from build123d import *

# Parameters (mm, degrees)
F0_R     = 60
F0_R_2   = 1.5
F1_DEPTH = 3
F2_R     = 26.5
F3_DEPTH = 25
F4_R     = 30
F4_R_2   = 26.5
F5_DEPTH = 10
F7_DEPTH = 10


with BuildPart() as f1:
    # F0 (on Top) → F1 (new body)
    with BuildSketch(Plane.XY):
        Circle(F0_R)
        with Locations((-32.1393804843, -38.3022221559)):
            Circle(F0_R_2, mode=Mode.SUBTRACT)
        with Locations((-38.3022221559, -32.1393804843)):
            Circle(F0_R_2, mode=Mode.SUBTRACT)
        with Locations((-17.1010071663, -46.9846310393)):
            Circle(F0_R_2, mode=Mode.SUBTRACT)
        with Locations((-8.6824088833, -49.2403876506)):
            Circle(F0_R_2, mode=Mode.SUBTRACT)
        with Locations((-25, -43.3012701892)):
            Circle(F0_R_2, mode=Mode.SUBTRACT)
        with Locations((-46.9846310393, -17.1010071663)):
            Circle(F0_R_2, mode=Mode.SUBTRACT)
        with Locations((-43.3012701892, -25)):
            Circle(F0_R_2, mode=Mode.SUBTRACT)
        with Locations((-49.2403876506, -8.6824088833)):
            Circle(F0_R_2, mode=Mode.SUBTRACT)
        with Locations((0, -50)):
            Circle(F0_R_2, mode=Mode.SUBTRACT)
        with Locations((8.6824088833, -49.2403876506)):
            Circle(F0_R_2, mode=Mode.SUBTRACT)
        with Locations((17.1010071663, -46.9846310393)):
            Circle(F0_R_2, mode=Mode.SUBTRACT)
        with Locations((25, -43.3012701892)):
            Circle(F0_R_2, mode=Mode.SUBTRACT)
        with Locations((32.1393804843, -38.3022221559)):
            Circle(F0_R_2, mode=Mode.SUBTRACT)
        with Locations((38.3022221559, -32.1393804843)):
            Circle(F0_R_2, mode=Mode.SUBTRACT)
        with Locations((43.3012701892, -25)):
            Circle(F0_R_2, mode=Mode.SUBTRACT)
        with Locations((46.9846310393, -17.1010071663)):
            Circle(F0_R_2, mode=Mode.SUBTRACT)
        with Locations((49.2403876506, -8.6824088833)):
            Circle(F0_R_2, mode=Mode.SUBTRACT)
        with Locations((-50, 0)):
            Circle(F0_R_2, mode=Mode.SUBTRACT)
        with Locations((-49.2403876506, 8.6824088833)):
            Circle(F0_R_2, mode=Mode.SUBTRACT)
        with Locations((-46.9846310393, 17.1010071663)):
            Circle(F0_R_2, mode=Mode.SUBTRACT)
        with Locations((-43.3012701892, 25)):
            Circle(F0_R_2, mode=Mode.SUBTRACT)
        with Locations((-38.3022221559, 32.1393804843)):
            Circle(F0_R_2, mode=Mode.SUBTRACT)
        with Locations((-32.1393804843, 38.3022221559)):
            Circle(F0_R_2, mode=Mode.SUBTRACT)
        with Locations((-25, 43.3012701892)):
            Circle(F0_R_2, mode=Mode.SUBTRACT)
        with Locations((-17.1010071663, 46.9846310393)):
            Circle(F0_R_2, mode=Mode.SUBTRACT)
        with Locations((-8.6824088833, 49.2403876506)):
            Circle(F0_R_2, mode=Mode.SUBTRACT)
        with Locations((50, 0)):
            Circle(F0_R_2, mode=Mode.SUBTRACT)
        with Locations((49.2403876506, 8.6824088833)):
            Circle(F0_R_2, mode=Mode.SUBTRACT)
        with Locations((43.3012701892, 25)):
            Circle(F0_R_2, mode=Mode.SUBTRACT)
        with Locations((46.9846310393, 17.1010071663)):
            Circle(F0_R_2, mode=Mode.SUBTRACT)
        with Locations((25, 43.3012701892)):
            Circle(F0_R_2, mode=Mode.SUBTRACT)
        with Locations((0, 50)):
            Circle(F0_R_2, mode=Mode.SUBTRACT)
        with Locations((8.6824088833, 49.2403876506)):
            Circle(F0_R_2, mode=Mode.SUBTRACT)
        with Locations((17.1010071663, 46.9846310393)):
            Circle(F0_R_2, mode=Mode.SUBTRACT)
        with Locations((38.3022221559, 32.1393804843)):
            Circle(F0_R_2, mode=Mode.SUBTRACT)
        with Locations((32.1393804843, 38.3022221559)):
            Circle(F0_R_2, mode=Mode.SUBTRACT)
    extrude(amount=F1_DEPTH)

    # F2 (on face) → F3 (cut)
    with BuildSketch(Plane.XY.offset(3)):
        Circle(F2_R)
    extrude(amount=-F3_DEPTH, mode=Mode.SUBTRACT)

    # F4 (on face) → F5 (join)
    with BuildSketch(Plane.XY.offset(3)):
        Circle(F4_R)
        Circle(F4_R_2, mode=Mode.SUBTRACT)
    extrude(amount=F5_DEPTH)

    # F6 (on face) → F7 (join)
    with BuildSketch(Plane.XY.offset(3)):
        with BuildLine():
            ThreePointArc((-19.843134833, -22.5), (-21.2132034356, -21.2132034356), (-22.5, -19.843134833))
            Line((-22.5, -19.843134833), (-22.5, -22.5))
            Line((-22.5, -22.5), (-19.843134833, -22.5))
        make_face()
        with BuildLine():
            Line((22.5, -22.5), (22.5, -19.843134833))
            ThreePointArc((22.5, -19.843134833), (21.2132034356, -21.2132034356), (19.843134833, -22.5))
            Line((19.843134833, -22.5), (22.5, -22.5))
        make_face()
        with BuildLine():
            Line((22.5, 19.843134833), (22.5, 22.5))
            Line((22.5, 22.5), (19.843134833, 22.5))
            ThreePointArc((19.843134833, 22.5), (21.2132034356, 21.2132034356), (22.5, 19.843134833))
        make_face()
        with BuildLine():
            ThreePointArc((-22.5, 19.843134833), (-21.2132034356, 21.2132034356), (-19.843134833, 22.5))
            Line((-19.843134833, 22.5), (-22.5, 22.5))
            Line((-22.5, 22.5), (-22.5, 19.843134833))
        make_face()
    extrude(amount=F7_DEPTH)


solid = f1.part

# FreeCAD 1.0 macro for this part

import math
import FreeCAD as App
import Part
import Sketcher

doc = App.newDocument("Part")
body = doc.addObject("PartDesign::Body", "Body")

# Sketch on XY plane
sketch1 = body.newObject("Sketcher::SketchObject", "Sketch")
sketch1.AttachmentSupport = (doc.getObject("XY_Plane"), [""])
sketch1.MapMode = "FlatFace"
sketch1.addGeometry([
    Part.Circle(App.Vector(0, 0, 0), App.Vector(0, 0, 1), 60),  # 0
    Part.Circle(App.Vector(-32.1, -38.3, 0), App.Vector(0, 0, 1), 1.5),  # 1
    Part.Circle(App.Vector(-38.3, -32.1, 0), App.Vector(0, 0, 1), 1.5),  # 2
    Part.Circle(App.Vector(-17.1, -47, 0), App.Vector(0, 0, 1), 1.5),  # 3
    Part.Circle(App.Vector(-25, -43.3, 0), App.Vector(0, 0, 1), 1.5),  # 4
    Part.Circle(App.Vector(-8.7, -49.2, 0), App.Vector(0, 0, 1), 1.5),  # 5
    Part.Circle(App.Vector(0, -50, 0), App.Vector(0, 0, 1), 1.5),  # 6
    Part.Circle(App.Vector(-43.3, -25, 0), App.Vector(0, 0, 1), 1.5),  # 7
    Part.Circle(App.Vector(-47, -17.1, 0), App.Vector(0, 0, 1), 1.5),  # 8
    Part.Circle(App.Vector(-49.2, -8.7, 0), App.Vector(0, 0, 1), 1.5),  # 9
    Part.Circle(App.Vector(-50, 0, 0), App.Vector(0, 0, 1), 1.5),  # 10
    Part.Circle(App.Vector(8.7, -49.2, 0), App.Vector(0, 0, 1), 1.5),  # 11
    Part.Circle(App.Vector(17.1, -47, 0), App.Vector(0, 0, 1), 1.5),  # 12
    Part.Circle(App.Vector(25, -43.3, 0), App.Vector(0, 0, 1), 1.5),  # 13
    Part.Circle(App.Vector(32.1, -38.3, 0), App.Vector(0, 0, 1), 1.5),  # 14
    Part.Circle(App.Vector(38.3, -32.1, 0), App.Vector(0, 0, 1), 1.5),  # 15
    Part.Circle(App.Vector(43.3, -25, 0), App.Vector(0, 0, 1), 1.5),  # 16
    Part.Circle(App.Vector(47, -17.1, 0), App.Vector(0, 0, 1), 1.5),  # 17
    Part.Circle(App.Vector(49.2, -8.7, 0), App.Vector(0, 0, 1), 1.5),  # 18
    Part.Circle(App.Vector(50, 0, 0), App.Vector(0, 0, 1), 1.5),  # 19
    Part.Circle(App.Vector(-49.2, 8.7, 0), App.Vector(0, 0, 1), 1.5),  # 20
    Part.Circle(App.Vector(-47, 17.1, 0), App.Vector(0, 0, 1), 1.5),  # 21
    Part.Circle(App.Vector(-43.3, 25, 0), App.Vector(0, 0, 1), 1.5),  # 22
    Part.Circle(App.Vector(-38.3, 32.1, 0), App.Vector(0, 0, 1), 1.5),  # 23
    Part.Circle(App.Vector(-32.1, 38.3, 0), App.Vector(0, 0, 1), 1.5),  # 24
    Part.Circle(App.Vector(-25, 43.3, 0), App.Vector(0, 0, 1), 1.5),  # 25
    Part.Circle(App.Vector(-17.1, 47, 0), App.Vector(0, 0, 1), 1.5),  # 26
    Part.Circle(App.Vector(-8.7, 49.2, 0), App.Vector(0, 0, 1), 1.5),  # 27
    Part.Circle(App.Vector(0, 50, 0), App.Vector(0, 0, 1), 1.5),  # 28
    Part.Circle(App.Vector(49.2, 8.7, 0), App.Vector(0, 0, 1), 1.5),  # 29
    Part.Circle(App.Vector(47, 17.1, 0), App.Vector(0, 0, 1), 1.5),  # 30
    Part.Circle(App.Vector(43.3, 25, 0), App.Vector(0, 0, 1), 1.5),  # 31
    Part.Circle(App.Vector(8.7, 49.2, 0), App.Vector(0, 0, 1), 1.5),  # 32
    Part.Circle(App.Vector(25, 43.3, 0), App.Vector(0, 0, 1), 1.5),  # 33
    Part.Circle(App.Vector(17.1, 47, 0), App.Vector(0, 0, 1), 1.5),  # 34
    Part.Circle(App.Vector(38.3, 32.1, 0), App.Vector(0, 0, 1), 1.5),  # 35
    Part.Circle(App.Vector(32.1, 38.3, 0), App.Vector(0, 0, 1), 1.5),  # 36
], False)
sketch1.addConstraint([
    Sketcher.Constraint("Coincident", 0, 3, -1, 1),
    Sketcher.Constraint("Equal", 1, 2),
    Sketcher.Constraint("Equal", 2, 3),
    Sketcher.Constraint("Equal", 3, 4),
    Sketcher.Constraint("Equal", 4, 5),
    Sketcher.Constraint("Equal", 5, 6),
    Sketcher.Constraint("Equal", 6, 7),
    Sketcher.Constraint("Equal", 7, 8),
    Sketcher.Constraint("Equal", 8, 9),
    Sketcher.Constraint("Equal", 9, 10),
    Sketcher.Constraint("Equal", 10, 11),
    Sketcher.Constraint("Equal", 11, 12),
    Sketcher.Constraint("Equal", 12, 13),
    Sketcher.Constraint("Equal", 13, 14),
    Sketcher.Constraint("Equal", 14, 15),
    Sketcher.Constraint("Equal", 15, 16),
    Sketcher.Constraint("Equal", 16, 17),
    Sketcher.Constraint("Equal", 17, 18),
    Sketcher.Constraint("Equal", 18, 19),
    Sketcher.Constraint("Equal", 19, 20),
    Sketcher.Constraint("Equal", 20, 21),
    Sketcher.Constraint("Equal", 21, 22),
    Sketcher.Constraint("Equal", 22, 23),
    Sketcher.Constraint("Equal", 23, 24),
    Sketcher.Constraint("Equal", 24, 25),
    Sketcher.Constraint("Equal", 25, 26),
    Sketcher.Constraint("Equal", 26, 27),
    Sketcher.Constraint("Equal", 27, 28),
    Sketcher.Constraint("Equal", 28, 29),
    Sketcher.Constraint("Equal", 29, 30),
    Sketcher.Constraint("Equal", 30, 31),
    Sketcher.Constraint("Equal", 31, 32),
    Sketcher.Constraint("Equal", 32, 33),
    Sketcher.Constraint("Equal", 33, 34),
    Sketcher.Constraint("Equal", 34, 35),
    Sketcher.Constraint("Equal", 35, 36),
    Sketcher.Constraint("Symmetric", 10, 3, 19, 3, -1, 1),
    Sketcher.Constraint("Symmetric", 18, 3, 20, 3, -1, 1),
    Sketcher.Constraint("Symmetric", 17, 3, 21, 3, -1, 1),
    Sketcher.Constraint("Symmetric", 16, 3, 22, 3, -1, 1),
    Sketcher.Constraint("Symmetric", 15, 3, 23, 3, -1, 1),
    Sketcher.Constraint("Symmetric", 14, 3, 24, 3, -1, 1),
    Sketcher.Constraint("Symmetric", 13, 3, 25, 3, -1, 1),
    Sketcher.Constraint("Symmetric", 12, 3, 26, 3, -1, 1),
    Sketcher.Constraint("Symmetric", 11, 3, 27, 3, -1, 1),
    Sketcher.Constraint("Symmetric", 6, 3, 28, 3, -1, 1),
    Sketcher.Constraint("Symmetric", 9, 3, 29, 3, -1, 1),
    Sketcher.Constraint("Symmetric", 8, 3, 30, 3, -1, 1),
    Sketcher.Constraint("Symmetric", 7, 3, 31, 3, -1, 1),
    Sketcher.Constraint("Symmetric", 5, 3, 32, 3, -1, 1),
    Sketcher.Constraint("Symmetric", 4, 3, 33, 3, -1, 1),
    Sketcher.Constraint("Symmetric", 3, 3, 34, 3, -1, 1),
    Sketcher.Constraint("Symmetric", 2, 3, 35, 3, -1, 1),
    Sketcher.Constraint("Symmetric", 1, 3, 36, 3, -1, 1),
    Sketcher.Constraint("Symmetric", 5, 3, 11, 3, -2),
    Sketcher.Constraint("Symmetric", 3, 3, 12, 3, -2),
    Sketcher.Constraint("Symmetric", 4, 3, 13, 3, -2),
    Sketcher.Constraint("Symmetric", 1, 3, 14, 3, -2),
    Sketcher.Constraint("Symmetric", 2, 3, 15, 3, -2),
    Sketcher.Constraint("Symmetric", 7, 3, 16, 3, -2),
    Sketcher.Constraint("Symmetric", 8, 3, 17, 3, -2),
    Sketcher.Constraint("Symmetric", 9, 3, 18, 3, -2),
    Sketcher.Constraint("PointOnObject", 6, 3, -2),
    Sketcher.Constraint("PointOnObject", 10, 3, -1),
    Sketcher.Constraint("Diameter", 0, 120.0),
    Sketcher.Constraint("Diameter", 1, 3.0),
    Sketcher.Constraint("DistanceX", 4, 3, -1, 1, 25.0),
    Sketcher.Constraint("DistanceY", 6, 3, -1, 1, 50.0),
    Sketcher.Constraint("DistanceY", 7, 3, -1, 1, 25.0),
    Sketcher.Constraint("DistanceX", 10, 3, -1, 1, 50.0),
    Sketcher.Constraint("DistanceX", 3, 3, 5, 3, 8.418598),
    Sketcher.Constraint("DistanceY", 8, 3, 9, 3, 8.418598),
    Sketcher.Constraint("DistanceX", 1, 3, -1, 1, 32.13938),
    Sketcher.Constraint("DistanceY", 2, 3, -1, 1, 32.13938),
    Sketcher.Constraint("DistanceY", 3, 3, -1, 1, 46.984631),
    Sketcher.Constraint("DistanceY", 4, 3, -1, 1, 43.30127),
    Sketcher.Constraint("DistanceX", 5, 3, -1, 1, 8.682409),
    Sketcher.Constraint("DistanceX", 7, 3, -1, 1, 43.30127),
    Sketcher.Constraint("DistanceX", 8, 3, -1, 1, 46.984631),
    Sketcher.Constraint("DistanceY", 9, 3, -1, 1, 8.682409),
    Sketcher.Constraint("DistanceX", 2, 3, 1, 3, 6.162842),
    Sketcher.Constraint("DistanceY", 1, 3, 2, 3, 6.162842),
    Sketcher.Constraint("DistanceY", 5, 3, -1, 1, 49.240388),
    Sketcher.Constraint("DistanceX", 9, 3, -1, 1, 49.240388),
])
pad1 = body.newObject("PartDesign::Pad", "Pad")
pad1.Profile = sketch1
pad1.Length = 3

# Sketch on XY plane
sketch2 = body.newObject("Sketcher::SketchObject", "Sketch001")
sketch2.AttachmentSupport = (doc.getObject("XY_Plane"), [""])
sketch2.MapMode = "FlatFace"
sketch2.AttachmentOffset = App.Placement(App.Vector(0, 0, 3), App.Rotation())
sketch2.addGeometry(Part.Circle(App.Vector(0, 0, 0), App.Vector(0, 0, 1), 26), False)
sketch2.addConstraint([
    Sketcher.Constraint("Coincident", 0, 3, -1, 1),
    Sketcher.Constraint("Diameter", 0, 53.0),
])
pocket1 = body.newObject("PartDesign::Pocket", "Pocket")
pocket1.Profile = sketch2
pocket1.Length = 25

# Sketch on XY plane
sketch3 = body.newObject("Sketcher::SketchObject", "Sketch002")
sketch3.AttachmentSupport = (doc.getObject("XY_Plane"), [""])
sketch3.MapMode = "FlatFace"
sketch3.AttachmentOffset = App.Placement(App.Vector(0, 0, 3), App.Rotation())
sketch3.addGeometry([
    Part.Circle(App.Vector(0, 0, 0), App.Vector(0, 0, 1), 30),
    Part.Circle(App.Vector(0, 0, 0), App.Vector(0, 0, 1), 26),
], False)
sketch3.addConstraint([
    Sketcher.Constraint("Coincident", 0, 3, -1, 1),
    Sketcher.Constraint("Coincident", 1, 3, -1, 1),
    Sketcher.Constraint("Diameter", 0, 60.0),
    Sketcher.Constraint("Diameter", 1, 53.0),
])
pad2 = body.newObject("PartDesign::Pad", "Pad001")
pad2.Profile = sketch3
pad2.Length = 10

# Sketch on XY plane
sketch4 = body.newObject("Sketcher::SketchObject", "Sketch003")
sketch4.AttachmentSupport = (doc.getObject("XY_Plane"), [""])
sketch4.MapMode = "FlatFace"
sketch4.AttachmentOffset = App.Placement(App.Vector(0, 0, 3), App.Rotation())
sketch4.addGeometry([
    Part.ArcOfCircle(Part.Circle(App.Vector(0, 0, 0), App.Vector(0, 0, 1), 30), math.radians(-138.59), math.radians(-131.41)),  # 0
    Part.LineSegment(App.Vector(-22.5, -19.8, 0), App.Vector(-22.5, -22.5, 0)),  # 1
    Part.LineSegment(App.Vector(-22.5, -22.5, 0), App.Vector(-19.8, -22.5, 0)),  # 2
    Part.LineSegment(App.Vector(22.5, -22.5, 0), App.Vector(22.5, -19.8, 0)),  # 3
    Part.ArcOfCircle(Part.Circle(App.Vector(0, 0, 0), App.Vector(0, 0, 1), 30), math.radians(-48.59), math.radians(-41.41)),  # 4
    Part.LineSegment(App.Vector(19.8, -22.5, 0), App.Vector(22.5, -22.5, 0)),  # 5
    Part.LineSegment(App.Vector(22.5, 19.8, 0), App.Vector(22.5, 22.5, 0)),  # 6
    Part.LineSegment(App.Vector(22.5, 22.5, 0), App.Vector(19.8, 22.5, 0)),  # 7
    Part.ArcOfCircle(Part.Circle(App.Vector(0, 0, 0), App.Vector(0, 0, 1), 30), math.radians(41.41), math.radians(48.59)),  # 8
    Part.ArcOfCircle(Part.Circle(App.Vector(0, 0, 0), App.Vector(0, 0, 1), 30), math.radians(131.41), math.radians(138.59)),  # 9
    Part.LineSegment(App.Vector(-19.8, 22.5, 0), App.Vector(-22.5, 22.5, 0)),  # 10
    Part.LineSegment(App.Vector(-22.5, 22.5, 0), App.Vector(-22.5, 19.8, 0)),  # 11
], False)
sketch4.addConstraint([
    Sketcher.Constraint("Coincident", 0, 1, 1, 1),
    Sketcher.Constraint("Coincident", 1, 2, 2, 1),
    Sketcher.Constraint("Coincident", 2, 2, 0, 2),
    Sketcher.Constraint("Coincident", 3, 2, 4, 2),
    Sketcher.Constraint("Coincident", 4, 1, 5, 1),
    Sketcher.Constraint("Coincident", 5, 2, 3, 1),
    Sketcher.Constraint("Coincident", 6, 2, 7, 1),
    Sketcher.Constraint("Coincident", 7, 2, 8, 2),
    Sketcher.Constraint("Coincident", 8, 1, 6, 1),
    Sketcher.Constraint("Coincident", 9, 1, 10, 1),
    Sketcher.Constraint("Coincident", 10, 2, 11, 1),
    Sketcher.Constraint("Coincident", 11, 2, 9, 2),
    Sketcher.Constraint("Vertical", 1),
    Sketcher.Constraint("Horizontal", 2),
    Sketcher.Constraint("Vertical", 3),
    Sketcher.Constraint("Horizontal", 5),
    Sketcher.Constraint("Vertical", 6),
    Sketcher.Constraint("Horizontal", 7),
    Sketcher.Constraint("Horizontal", 10),
    Sketcher.Constraint("Vertical", 11),
    Sketcher.Constraint("Coincident", 0, 3, -1, 1),
    Sketcher.Constraint("Coincident", 4, 3, -1, 1),
    Sketcher.Constraint("Coincident", 8, 3, -1, 1),
    Sketcher.Constraint("Coincident", 9, 3, -1, 1),
    Sketcher.Constraint("Equal", 0, 4),
    Sketcher.Constraint("Equal", 4, 8),
    Sketcher.Constraint("Equal", 8, 9),
    Sketcher.Constraint("Symmetric", 1, 2, 6, 2, -1, 1),
    Sketcher.Constraint("Symmetric", 5, 2, 10, 2, -1, 1),
    Sketcher.Constraint("Symmetric", 1, 2, 5, 2, -2),
    Sketcher.Constraint("Equal", 10, 1),
    Sketcher.Constraint("Radius", 0, 30.0),
    Sketcher.Constraint("DistanceX", 0, 1, -1, 1, 22.5),
])
pad3 = body.newObject("PartDesign::Pad", "Pad002")
pad3.Profile = sketch4
pad3.Length = 10

doc.recompute()
